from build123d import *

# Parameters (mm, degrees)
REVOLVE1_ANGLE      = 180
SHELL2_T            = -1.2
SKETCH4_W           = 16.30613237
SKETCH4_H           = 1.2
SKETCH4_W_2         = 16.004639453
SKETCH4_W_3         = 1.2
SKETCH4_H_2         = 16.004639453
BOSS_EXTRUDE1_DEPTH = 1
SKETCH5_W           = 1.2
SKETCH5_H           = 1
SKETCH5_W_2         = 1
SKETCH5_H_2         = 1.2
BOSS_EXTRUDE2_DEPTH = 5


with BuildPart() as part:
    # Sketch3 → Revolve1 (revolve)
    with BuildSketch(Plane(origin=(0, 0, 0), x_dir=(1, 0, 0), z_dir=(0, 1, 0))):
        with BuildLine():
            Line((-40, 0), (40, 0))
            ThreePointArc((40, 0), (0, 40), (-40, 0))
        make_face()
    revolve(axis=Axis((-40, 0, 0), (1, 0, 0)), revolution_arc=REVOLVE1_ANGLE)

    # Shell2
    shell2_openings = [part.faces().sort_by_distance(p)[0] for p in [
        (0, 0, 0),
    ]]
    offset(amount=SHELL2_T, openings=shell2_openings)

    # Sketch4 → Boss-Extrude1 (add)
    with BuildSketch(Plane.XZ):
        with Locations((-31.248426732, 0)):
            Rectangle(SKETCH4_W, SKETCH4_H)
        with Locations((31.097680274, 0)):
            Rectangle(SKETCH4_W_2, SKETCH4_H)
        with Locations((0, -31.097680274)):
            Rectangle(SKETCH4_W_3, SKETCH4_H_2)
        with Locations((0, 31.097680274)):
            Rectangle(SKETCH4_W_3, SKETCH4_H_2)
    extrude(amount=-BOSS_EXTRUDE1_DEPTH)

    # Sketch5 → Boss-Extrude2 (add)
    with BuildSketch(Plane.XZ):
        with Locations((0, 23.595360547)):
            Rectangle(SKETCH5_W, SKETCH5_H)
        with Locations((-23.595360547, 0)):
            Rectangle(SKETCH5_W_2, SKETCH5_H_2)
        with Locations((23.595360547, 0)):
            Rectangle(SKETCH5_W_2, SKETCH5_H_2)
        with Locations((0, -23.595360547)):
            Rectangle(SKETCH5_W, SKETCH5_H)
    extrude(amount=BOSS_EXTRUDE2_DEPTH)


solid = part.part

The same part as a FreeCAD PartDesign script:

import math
import FreeCAD as App
import Part
import Sketcher
Q = App.Units.Quantity


def faces_at(feature, points):
    """Names of the faces that lie closest to the given points."""
    faces = feature.Shape.Faces
    near = lambda p: min(range(len(faces)), key=lambda i: faces[i].distToShape(Part.Vertex(*p))[0])
    return sorted({f"Face{near(p) + 1}" for p in points})


def add_polygon(sketch, points):
    """Adds a closed chain of lines whose ends are joined by coincident constraints."""
    first, n = sketch.GeometryCount, len(points)
    for a, b in zip(points, points[1:] + points[:1]):
        sketch.addGeometry(Part.LineSegment(App.Vector(*a, 0), App.Vector(*b, 0)), False)
    for i in range(n):
        sketch.addConstraint(Sketcher.Constraint("Coincident", first + i, 2, first + (i + 1) % n, 1))

doc = App.newDocument("Part")
body = doc.addObject("PartDesign::Body", "Body")

sketch1 = body.newObject("Sketcher::SketchObject", "Sketch")
sketch1.AttachmentSupport = (doc.getObject("XZ_Plane"), [""])
sketch1.MapMode = "FlatFace"
sketch1.addGeometry(Part.LineSegment(App.Vector(-40, 0, 0), App.Vector(40, 0, 0)), False)
sketch1.addGeometry(Part.ArcOfCircle(Part.Circle(App.Vector(0, 0, 0), App.Vector(0, 0, 1), 40), math.radians(180), math.radians(360)), False)
sketch1.addConstraint(Sketcher.Constraint("Coincident", 0, 1, 1, 1))
sketch1.addConstraint(Sketcher.Constraint("Coincident", 1, 2, 0, 2))
sketch1.addConstraint(Sketcher.Constraint("Horizontal", 0))
sketch1.addConstraint(Sketcher.Constraint("Coincident", 1, 3, -1, 1))
sketch1.addConstraint(Sketcher.Constraint("PointOnObject", 0, 1, -1))
sketch1.addConstraint(Sketcher.Constraint("Radius", 1, Q("40 mm")))
revolution = body.newObject("PartDesign::Revolution", "Revolution")
revolution.Profile = sketch1
revolution.ReferenceAxis = (sketch1, ["H_Axis"])
revolution.Angle = 180
doc.recompute()

thickness = body.newObject("PartDesign::Thickness", "Thickness")
thickness.Base = (revolution, faces_at(revolution, [(0, 0, 0)]))
thickness.Value = 1.2
thickness.Reversed = True
thickness.Join = "Arc"

sketch2 = body.newObject("Sketcher::SketchObject", "Sketch001")
sketch2.AttachmentSupport = (doc.getObject("XZ_Plane"), [""])
sketch2.MapMode = "FlatFace"
add_polygon(sketch2, [(-39.401493, 0.6), (-39.401493, -0.6), (-23.095361, -0.6), (-23.095361, 0.6)])
add_polygon(sketch2, [(23.095361, 0.6), (23.095361, -0.6), (39.1, -0.6), (39.1, 0.6)])
add_polygon(sketch2, [(-0.6, -23.095361), (-0.6, -39.1), (0.6, -39.1), (0.6, -23.095361)])
add_polygon(sketch2, [(-0.6, 39.1), (-0.6, 23.095361), (0.6, 23.095361), (0.6, 39.1)])
sketch2.addConstraint(Sketcher.Constraint("Vertical", 0))
sketch2.addConstraint(Sketcher.Constraint("Horizontal", 1))
sketch2.addConstraint(Sketcher.Constraint("Vertical", 2))
sketch2.addConstraint(Sketcher.Constraint("Horizontal", 3))
sketch2.addConstraint(Sketcher.Constraint("Vertical", 4))
sketch2.addConstraint(Sketcher.Constraint("Horizontal", 5))
sketch2.addConstraint(Sketcher.Constraint("Vertical", 6))
sketch2.addConstraint(Sketcher.Constraint("Horizontal", 7))
sketch2.addConstraint(Sketcher.Constraint("Vertical", 8))
sketch2.addConstraint(Sketcher.Constraint("Horizontal", 9))
sketch2.addConstraint(Sketcher.Constraint("Vertical", 10))
sketch2.addConstraint(Sketcher.Constraint("Horizontal", 11))
sketch2.addConstraint(Sketcher.Constraint("Vertical", 12))
sketch2.addConstraint(Sketcher.Constraint("Horizontal", 13))
sketch2.addConstraint(Sketcher.Constraint("Vertical", 14))
sketch2.addConstraint(Sketcher.Constraint("Horizontal", 15))
sketch2.addConstraint(Sketcher.Constraint("Symmetric", 2, 2, 4, 2, -1, 1))
sketch2.addConstraint(Sketcher.Constraint("Symmetric", 10, 2, 12, 2, -1, 1))
sketch2.addConstraint(Sketcher.Constraint("Symmetric", 8, 2, 14, 2, -1, 1))
sketch2.addConstraint(Sketcher.Constraint("Horizontal", 1, 2, 4, 2))
sketch2.addConstraint(Sketcher.Constraint("Horizontal", 3, 2, 6, 2))
sketch2.addConstraint(Sketcher.Constraint("Vertical", 11, 2, 12, 2))
sketch2.addConstraint(Sketcher.Constraint("Equal", 15, 0))
sketch2.addConstraint(Sketcher.Constraint("Equal", 7, 8))
sketch2.addConstraint(Sketcher.Constraint("DistanceX", 9, 1, 9, 2, Q("1.2 mm")))
sketch2.addConstraint(Sketcher.Constraint("DistanceX", -1, 1, 5, 2, Q("39.1 mm")))
sketch2.addConstraint(Sketcher.Constraint("DistanceY", 8, 2, -1, 1, Q("39.1 mm")))
sketch2.addConstraint(Sketcher.Constraint("DistanceX", 5, 1, 5, 2, Q("16.004639 mm")))
sketch2.addConstraint(Sketcher.Constraint("DistanceX", 1, 1, 1, 2, Q("16.306132 mm")))
pad1 = body.newObject("PartDesign::Pad", "Pad")
pad1.Profile = sketch2
pad1.Length = 1
pad1.Reversed = True

sketch3 = body.newObject("Sketcher::SketchObject", "Sketch002")
sketch3.AttachmentSupport = (doc.getObject("XZ_Plane"), [""])
sketch3.MapMode = "FlatFace"
add_polygon(sketch3, [(-0.6, 24.095361), (-0.6, 23.095361), (0.6, 23.095361), (0.6, 24.095361)])
add_polygon(sketch3, [(-24.095361, 0.6), (-24.095361, -0.6), (-23.095361, -0.6), (-23.095361, 0.6)])
add_polygon(sketch3, [(23.095361, 0.6), (23.095361, -0.6), (24.095361, -0.6), (24.095361, 0.6)])
add_polygon(sketch3, [(-0.6, -23.095361), (-0.6, -24.095361), (0.6, -24.095361), (0.6, -23.095361)])
sketch3.addConstraint(Sketcher.Constraint("Vertical", 0))
sketch3.addConstraint(Sketcher.Constraint("Horizontal", 1))
sketch3.addConstraint(Sketcher.Constraint("Vertical", 2))
sketch3.addConstraint(Sketcher.Constraint("Horizontal", 3))
sketch3.addConstraint(Sketcher.Constraint("Vertical", 4))
sketch3.addConstraint(Sketcher.Constraint("Horizontal", 5))
sketch3.addConstraint(Sketcher.Constraint("Vertical", 6))
sketch3.addConstraint(Sketcher.Constraint("Horizontal", 7))
sketch3.addConstraint(Sketcher.Constraint("Vertical", 8))
sketch3.addConstraint(Sketcher.Constraint("Horizontal", 9))
sketch3.addConstraint(Sketcher.Constraint("Vertical", 10))
sketch3.addConstraint(Sketcher.Constraint("Horizontal", 11))
sketch3.addConstraint(Sketcher.Constraint("Vertical", 12))
sketch3.addConstraint(Sketcher.Constraint("Horizontal", 13))
sketch3.addConstraint(Sketcher.Constraint("Vertical", 14))
sketch3.addConstraint(Sketcher.Constraint("Horizontal", 15))
sketch3.addConstraint(Sketcher.Constraint("Symmetric", 6, 2, 8, 2, -1, 1))
sketch3.addConstraint(Sketcher.Constraint("Symmetric", 4, 2, 10, 2, -1, 1))
sketch3.addConstraint(Sketcher.Constraint("Symmetric", 2, 2, 12, 2, -1, 1))
sketch3.addConstraint(Sketcher.Constraint("Symmetric", 0, 2, 14, 2, -1, 1))
sketch3.addConstraint(Sketcher.Constraint("Horizontal", 5, 2, 8, 2))
sketch3.addConstraint(Sketcher.Constraint("Vertical", 3, 2, 12, 2))
sketch3.addConstraint(Sketcher.Constraint("Equal", 11, 0))
sketch3.addConstraint(Sketcher.Constraint("Equal", 15, 4))
sketch3.addConstraint(Sketcher.Constraint("DistanceX", 5, 1, 5, 2, Q("1 mm")))
sketch3.addConstraint(Sketcher.Constraint("DistanceX", 1, 1, 1, 2, Q("1.2 mm")))
sketch3.addConstraint(Sketcher.Constraint("DistanceY", -1, 1, 0, 2, Q("23.095361 mm")))
sketch3.addConstraint(Sketcher.Constraint("DistanceX", 4, 2, -1, 1, Q("24.095361 mm")))
pad2 = body.newObject("PartDesign::Pad", "Pad001")
pad2.Profile = sketch3
pad2.Length = 5

doc.recompute()
